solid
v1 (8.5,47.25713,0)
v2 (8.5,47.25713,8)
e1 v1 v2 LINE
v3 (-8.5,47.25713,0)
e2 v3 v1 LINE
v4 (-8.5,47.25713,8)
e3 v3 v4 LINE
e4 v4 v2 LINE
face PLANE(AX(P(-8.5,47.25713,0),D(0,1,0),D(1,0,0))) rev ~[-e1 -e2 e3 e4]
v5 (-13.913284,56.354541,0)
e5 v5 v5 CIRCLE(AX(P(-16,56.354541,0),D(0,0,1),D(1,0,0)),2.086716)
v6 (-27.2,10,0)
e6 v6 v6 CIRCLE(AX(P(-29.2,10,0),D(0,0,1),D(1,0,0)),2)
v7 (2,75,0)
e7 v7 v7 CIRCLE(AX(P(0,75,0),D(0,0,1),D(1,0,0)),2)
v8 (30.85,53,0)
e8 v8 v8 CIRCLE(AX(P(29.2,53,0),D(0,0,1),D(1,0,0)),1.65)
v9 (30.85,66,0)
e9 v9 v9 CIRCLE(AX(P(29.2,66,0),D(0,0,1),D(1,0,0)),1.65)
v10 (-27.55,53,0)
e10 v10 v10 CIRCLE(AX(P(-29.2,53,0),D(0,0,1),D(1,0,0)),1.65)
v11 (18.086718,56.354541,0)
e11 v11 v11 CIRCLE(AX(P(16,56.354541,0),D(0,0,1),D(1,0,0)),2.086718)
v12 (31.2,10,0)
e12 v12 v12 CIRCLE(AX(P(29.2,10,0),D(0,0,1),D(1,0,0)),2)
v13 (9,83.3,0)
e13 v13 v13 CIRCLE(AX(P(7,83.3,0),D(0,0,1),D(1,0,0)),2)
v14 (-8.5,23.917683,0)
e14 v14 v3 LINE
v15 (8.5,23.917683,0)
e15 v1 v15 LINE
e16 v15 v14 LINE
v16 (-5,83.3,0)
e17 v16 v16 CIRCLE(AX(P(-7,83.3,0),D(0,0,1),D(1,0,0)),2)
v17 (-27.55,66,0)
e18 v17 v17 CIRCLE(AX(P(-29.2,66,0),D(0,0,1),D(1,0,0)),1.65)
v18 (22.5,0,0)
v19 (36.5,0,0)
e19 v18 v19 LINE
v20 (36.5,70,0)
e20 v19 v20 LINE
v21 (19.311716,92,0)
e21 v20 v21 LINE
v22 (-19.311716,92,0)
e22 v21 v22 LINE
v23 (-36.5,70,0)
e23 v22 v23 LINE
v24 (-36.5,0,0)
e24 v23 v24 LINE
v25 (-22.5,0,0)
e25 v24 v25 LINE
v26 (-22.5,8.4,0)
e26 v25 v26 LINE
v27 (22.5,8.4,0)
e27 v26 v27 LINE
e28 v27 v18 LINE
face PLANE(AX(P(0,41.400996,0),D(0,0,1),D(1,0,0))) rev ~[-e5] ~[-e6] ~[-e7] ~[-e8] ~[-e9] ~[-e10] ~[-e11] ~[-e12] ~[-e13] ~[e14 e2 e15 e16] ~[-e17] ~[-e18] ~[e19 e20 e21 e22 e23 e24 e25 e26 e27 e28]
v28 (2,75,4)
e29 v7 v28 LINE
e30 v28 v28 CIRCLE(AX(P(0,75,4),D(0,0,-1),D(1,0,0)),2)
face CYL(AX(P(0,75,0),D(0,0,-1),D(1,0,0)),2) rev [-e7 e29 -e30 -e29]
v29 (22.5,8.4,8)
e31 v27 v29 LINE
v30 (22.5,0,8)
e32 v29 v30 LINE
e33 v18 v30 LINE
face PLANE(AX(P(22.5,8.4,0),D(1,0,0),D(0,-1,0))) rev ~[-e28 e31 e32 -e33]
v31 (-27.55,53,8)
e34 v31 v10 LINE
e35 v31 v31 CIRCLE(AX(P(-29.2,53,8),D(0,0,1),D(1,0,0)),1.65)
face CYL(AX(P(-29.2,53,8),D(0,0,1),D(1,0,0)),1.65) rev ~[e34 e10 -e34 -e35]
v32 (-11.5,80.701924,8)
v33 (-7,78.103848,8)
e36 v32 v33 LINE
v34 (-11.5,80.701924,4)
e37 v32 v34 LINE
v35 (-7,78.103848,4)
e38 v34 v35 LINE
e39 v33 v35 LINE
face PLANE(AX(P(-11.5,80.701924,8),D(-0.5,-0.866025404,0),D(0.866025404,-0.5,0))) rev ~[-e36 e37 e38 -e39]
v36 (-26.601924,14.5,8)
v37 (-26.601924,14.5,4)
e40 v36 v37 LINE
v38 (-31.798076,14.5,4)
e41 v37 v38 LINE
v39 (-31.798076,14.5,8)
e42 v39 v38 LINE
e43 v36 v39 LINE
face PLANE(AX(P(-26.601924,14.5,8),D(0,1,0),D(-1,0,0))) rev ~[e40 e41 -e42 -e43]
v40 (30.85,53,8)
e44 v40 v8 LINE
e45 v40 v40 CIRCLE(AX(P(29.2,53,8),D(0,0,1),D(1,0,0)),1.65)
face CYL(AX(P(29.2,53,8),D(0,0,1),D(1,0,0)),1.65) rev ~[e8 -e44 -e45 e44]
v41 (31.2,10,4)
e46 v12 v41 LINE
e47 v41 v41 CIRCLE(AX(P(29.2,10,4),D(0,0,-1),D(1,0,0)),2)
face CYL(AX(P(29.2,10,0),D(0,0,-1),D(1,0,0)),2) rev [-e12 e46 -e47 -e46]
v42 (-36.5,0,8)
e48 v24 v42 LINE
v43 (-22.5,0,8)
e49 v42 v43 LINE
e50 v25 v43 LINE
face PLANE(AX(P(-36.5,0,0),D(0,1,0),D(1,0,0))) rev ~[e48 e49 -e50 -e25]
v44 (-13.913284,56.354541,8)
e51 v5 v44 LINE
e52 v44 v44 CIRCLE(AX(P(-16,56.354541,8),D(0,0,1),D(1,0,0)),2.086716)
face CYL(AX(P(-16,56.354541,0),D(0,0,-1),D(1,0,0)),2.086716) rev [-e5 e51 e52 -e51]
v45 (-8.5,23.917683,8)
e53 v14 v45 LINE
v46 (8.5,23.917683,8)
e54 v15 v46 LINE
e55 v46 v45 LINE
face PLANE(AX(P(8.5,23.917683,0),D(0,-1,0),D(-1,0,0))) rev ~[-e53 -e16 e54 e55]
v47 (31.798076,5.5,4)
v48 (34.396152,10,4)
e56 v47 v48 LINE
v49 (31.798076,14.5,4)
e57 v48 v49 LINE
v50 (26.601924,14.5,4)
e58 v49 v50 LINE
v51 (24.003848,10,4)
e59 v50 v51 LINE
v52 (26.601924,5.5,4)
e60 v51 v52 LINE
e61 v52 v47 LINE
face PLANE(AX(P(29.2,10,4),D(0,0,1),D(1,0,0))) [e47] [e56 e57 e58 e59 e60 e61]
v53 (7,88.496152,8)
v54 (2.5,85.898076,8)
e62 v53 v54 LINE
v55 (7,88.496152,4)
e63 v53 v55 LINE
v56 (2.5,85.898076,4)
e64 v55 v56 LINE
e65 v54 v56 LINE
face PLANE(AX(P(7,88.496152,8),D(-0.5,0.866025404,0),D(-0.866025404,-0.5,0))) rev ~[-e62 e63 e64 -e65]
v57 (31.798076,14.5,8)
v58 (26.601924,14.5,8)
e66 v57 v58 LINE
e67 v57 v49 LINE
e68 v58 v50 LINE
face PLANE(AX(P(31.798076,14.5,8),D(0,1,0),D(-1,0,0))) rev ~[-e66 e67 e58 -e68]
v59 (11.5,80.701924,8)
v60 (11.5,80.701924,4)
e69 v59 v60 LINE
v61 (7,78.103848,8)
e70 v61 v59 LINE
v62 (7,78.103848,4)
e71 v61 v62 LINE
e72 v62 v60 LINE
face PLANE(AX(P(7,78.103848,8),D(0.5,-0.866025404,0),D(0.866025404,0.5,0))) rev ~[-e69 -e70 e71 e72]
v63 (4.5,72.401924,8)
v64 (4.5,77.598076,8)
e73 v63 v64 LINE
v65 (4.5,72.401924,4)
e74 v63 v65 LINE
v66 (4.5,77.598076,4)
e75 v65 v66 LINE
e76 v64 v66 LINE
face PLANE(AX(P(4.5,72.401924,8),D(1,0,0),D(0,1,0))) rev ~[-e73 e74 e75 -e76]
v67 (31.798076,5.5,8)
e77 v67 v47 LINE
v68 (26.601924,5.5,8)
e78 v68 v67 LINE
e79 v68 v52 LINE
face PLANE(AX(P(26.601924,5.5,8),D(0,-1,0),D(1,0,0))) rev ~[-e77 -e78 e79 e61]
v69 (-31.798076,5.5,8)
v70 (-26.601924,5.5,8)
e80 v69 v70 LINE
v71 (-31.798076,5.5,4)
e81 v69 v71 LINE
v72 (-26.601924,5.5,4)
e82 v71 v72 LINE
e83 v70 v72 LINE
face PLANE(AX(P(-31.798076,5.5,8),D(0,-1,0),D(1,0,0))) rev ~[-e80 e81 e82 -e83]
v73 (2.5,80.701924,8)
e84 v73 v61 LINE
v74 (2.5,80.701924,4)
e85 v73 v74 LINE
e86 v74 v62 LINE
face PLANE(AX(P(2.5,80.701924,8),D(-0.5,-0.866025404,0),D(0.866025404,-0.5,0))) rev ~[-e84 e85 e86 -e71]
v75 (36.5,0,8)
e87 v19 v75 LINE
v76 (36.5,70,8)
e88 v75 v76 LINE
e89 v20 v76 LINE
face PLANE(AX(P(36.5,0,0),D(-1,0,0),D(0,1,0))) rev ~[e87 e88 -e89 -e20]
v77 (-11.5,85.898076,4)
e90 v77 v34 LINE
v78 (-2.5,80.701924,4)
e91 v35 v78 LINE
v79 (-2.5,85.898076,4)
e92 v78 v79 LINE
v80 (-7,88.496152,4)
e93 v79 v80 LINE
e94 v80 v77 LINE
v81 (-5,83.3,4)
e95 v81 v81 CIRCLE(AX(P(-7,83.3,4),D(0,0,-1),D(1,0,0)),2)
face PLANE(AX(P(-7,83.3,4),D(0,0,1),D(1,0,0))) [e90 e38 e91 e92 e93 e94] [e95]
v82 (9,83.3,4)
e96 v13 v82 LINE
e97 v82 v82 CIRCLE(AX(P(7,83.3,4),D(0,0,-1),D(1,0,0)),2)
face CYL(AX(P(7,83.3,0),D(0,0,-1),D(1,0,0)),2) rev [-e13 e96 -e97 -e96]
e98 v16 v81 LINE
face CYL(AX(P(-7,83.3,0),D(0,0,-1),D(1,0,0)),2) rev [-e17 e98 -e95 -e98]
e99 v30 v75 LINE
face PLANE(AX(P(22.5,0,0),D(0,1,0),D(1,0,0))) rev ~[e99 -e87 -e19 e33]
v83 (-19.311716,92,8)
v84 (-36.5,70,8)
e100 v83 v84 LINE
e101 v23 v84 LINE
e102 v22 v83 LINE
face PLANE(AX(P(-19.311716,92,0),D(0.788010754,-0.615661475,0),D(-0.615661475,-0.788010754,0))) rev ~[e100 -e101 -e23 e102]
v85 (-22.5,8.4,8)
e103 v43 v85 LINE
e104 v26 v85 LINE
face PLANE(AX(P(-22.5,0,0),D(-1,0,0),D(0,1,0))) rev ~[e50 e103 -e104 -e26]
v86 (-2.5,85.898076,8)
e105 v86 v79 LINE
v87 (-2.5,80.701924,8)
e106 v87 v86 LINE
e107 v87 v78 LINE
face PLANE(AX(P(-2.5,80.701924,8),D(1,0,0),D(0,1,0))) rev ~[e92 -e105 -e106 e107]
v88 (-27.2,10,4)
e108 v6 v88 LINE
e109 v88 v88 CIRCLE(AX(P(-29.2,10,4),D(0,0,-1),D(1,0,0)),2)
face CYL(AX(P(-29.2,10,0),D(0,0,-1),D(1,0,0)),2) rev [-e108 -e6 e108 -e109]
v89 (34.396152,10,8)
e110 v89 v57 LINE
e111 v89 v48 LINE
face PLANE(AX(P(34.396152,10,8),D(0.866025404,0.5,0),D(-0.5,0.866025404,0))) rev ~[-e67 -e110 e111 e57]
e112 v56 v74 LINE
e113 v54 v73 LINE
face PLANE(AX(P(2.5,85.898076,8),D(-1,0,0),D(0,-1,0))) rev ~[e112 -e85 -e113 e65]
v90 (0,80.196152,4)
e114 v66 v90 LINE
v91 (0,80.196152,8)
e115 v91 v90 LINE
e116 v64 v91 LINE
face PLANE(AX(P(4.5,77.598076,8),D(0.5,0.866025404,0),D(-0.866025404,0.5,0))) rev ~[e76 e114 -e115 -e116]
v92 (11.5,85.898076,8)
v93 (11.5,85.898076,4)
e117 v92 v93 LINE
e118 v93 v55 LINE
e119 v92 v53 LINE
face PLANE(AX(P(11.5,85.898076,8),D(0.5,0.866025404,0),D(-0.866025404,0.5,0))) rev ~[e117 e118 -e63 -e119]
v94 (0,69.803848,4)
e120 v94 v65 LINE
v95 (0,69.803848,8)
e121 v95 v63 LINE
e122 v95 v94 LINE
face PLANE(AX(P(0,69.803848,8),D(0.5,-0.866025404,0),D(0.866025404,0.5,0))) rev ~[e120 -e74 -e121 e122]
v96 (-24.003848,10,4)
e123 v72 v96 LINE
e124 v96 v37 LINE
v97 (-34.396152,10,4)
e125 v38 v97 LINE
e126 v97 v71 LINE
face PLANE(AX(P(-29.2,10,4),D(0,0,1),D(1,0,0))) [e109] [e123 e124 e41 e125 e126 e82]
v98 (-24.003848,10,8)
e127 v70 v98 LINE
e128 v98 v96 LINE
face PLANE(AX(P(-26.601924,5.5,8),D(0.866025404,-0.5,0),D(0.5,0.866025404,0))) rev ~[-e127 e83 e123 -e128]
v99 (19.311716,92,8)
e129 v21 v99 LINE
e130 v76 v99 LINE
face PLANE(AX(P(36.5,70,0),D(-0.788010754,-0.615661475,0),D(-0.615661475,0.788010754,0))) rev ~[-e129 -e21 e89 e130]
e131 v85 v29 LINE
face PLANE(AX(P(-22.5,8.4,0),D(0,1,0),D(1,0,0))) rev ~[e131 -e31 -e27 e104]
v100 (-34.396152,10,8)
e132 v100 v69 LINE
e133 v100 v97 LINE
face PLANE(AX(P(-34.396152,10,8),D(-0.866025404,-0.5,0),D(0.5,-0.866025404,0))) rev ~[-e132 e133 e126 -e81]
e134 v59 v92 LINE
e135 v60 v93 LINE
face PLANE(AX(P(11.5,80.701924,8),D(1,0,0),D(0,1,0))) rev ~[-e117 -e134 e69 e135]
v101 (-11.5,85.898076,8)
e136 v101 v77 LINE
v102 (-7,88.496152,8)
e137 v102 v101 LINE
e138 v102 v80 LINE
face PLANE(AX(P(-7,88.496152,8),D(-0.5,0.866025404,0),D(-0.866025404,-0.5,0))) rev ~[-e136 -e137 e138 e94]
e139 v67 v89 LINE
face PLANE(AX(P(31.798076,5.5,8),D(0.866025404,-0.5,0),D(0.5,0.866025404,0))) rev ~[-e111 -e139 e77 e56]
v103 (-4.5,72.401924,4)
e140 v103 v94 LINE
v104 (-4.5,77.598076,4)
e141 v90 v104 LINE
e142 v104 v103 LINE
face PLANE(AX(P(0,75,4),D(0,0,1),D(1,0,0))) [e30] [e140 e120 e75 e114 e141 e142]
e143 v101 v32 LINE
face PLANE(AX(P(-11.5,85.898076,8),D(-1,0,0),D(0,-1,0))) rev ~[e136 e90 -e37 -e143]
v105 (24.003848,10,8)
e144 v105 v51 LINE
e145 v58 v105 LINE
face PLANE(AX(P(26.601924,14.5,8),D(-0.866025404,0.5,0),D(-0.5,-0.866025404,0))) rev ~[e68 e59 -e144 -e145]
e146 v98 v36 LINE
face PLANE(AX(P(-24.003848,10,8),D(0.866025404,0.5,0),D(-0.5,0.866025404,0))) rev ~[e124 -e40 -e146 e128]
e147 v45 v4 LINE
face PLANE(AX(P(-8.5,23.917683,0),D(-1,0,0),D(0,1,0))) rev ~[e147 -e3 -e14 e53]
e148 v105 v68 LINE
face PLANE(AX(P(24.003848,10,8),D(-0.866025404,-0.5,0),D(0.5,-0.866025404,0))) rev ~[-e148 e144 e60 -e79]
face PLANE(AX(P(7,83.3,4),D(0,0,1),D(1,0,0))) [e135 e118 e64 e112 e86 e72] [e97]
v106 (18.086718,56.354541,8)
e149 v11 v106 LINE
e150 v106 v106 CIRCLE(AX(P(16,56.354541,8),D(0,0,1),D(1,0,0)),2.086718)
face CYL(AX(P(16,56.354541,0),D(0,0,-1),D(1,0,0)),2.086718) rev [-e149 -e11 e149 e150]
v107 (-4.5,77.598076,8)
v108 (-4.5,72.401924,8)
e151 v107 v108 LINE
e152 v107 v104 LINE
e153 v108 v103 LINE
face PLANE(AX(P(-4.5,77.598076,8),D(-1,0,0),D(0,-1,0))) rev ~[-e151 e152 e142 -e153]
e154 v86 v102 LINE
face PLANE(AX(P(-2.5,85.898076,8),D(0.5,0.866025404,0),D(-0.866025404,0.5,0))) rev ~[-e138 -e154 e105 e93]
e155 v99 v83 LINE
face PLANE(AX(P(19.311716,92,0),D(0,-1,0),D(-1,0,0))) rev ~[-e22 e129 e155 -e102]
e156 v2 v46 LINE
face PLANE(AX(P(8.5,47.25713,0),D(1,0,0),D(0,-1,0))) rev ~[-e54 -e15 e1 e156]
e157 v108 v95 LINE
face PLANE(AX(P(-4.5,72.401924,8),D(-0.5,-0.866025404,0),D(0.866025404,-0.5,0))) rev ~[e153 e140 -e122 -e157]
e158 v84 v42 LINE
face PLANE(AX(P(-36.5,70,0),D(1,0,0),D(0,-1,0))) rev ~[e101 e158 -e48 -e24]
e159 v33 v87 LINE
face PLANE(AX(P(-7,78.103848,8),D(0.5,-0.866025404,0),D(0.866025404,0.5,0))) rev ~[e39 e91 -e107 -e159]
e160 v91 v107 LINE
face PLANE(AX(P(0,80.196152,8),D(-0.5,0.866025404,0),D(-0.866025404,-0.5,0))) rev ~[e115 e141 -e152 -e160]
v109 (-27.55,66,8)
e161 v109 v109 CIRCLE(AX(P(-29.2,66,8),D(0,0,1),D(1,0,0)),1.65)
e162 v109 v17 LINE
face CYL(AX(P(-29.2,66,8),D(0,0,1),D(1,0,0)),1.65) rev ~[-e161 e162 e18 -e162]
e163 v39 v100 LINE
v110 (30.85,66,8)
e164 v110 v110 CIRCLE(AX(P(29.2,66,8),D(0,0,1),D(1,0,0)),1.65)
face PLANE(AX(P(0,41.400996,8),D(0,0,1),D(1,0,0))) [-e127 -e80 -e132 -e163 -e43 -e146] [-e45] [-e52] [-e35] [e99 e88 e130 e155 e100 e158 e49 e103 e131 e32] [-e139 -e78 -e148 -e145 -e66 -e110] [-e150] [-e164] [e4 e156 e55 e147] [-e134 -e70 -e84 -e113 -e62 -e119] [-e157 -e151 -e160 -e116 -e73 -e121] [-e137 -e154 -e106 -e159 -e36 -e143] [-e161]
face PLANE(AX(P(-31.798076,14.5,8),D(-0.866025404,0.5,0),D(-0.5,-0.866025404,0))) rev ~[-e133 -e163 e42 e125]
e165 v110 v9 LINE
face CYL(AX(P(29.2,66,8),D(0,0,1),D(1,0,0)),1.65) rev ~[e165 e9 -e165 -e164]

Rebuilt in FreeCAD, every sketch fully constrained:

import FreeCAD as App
import Part
import Sketcher
Q = App.Units.Quantity


def add_polygon(sketch, points):
    """Adds a closed chain of lines whose ends are joined by coincident constraints."""
    first, n = sketch.GeometryCount, len(points)
    for a, b in zip(points, points[1:] + points[:1]):
        sketch.addGeometry(Part.LineSegment(App.Vector(*a, 0), App.Vector(*b, 0)), False)
    for i in range(n):
        sketch.addConstraint(Sketcher.Constraint("Coincident", first + i, 2, first + (i + 1) % n, 1))

doc = App.newDocument("Part")
params = doc.addObject("Spreadsheet::Sheet", "Params")
for row, (alias, value) in enumerate([
    ("sketch1_diameter", "4 mm"),
    ("sketch1_width", "14 mm"),
    ("sketch1_width2", "45 mm"),
    ("sketch1_width3", "17 mm"),
    ("sketch1_height", "70 mm"),
    ("pad1_length", "8 mm"),
    ("sketch2_diameter", "3.3 mm"),
    ("pocket2_length", "4 mm"),
], start=1):
    params.set(f"A{row}", alias)
    params.set(f"B{row}", "=" + value)
    params.setAlias(f"B{row}", alias)

body = doc.addObject("PartDesign::Body", "Body")

sketch1 = body.newObject("Sketcher::SketchObject", "Sketch")
sketch1.AttachmentSupport = (doc.getObject("XY_Plane"), [""])
sketch1.MapMode = "FlatFace"
add_polygon(sketch1, [(19.3, 92), (-19.3, 92), (-36.5, 70), (-36.5, 0), (-22.5, 0), (-22.5, 8.4), (22.5, 8.4), (22.5, 0), (36.5, 0), (36.5, 70)])
sketch1.addGeometry(Part.Circle(App.Vector(-29.2, 10, 0), App.Vector(0, 0, 1), 2), False)
sketch1.addGeometry(Part.Circle(App.Vector(29.2, 10, 0), App.Vector(0, 0, 1), 2), False)
add_polygon(sketch1, [(-8.5, 47.3), (8.5, 47.3), (8.5, 23.9), (-8.5, 23.9)])
sketch1.addGeometry(Part.Circle(App.Vector(-16, 56.4, 0), App.Vector(0, 0, 1), 2.1), False)
sketch1.addGeometry(Part.Circle(App.Vector(-7, 83.3, 0), App.Vector(0, 0, 1), 2), False)
sketch1.addGeometry(Part.Circle(App.Vector(16, 56.4, 0), App.Vector(0, 0, 1), 2.1), False)
sketch1.addGeometry(Part.Circle(App.Vector(0, 75, 0), App.Vector(0, 0, 1), 2), False)
sketch1.addGeometry(Part.Circle(App.Vector(7, 83.3, 0), App.Vector(0, 0, 1), 2), False)
sketch1.addConstraint([
    Sketcher.Constraint("Horizontal", 0),
    Sketcher.Constraint("Vertical", 2),
    Sketcher.Constraint("Horizontal", 3),
    Sketcher.Constraint("Vertical", 4),
    Sketcher.Constraint("Horizontal", 5),
    Sketcher.Constraint("Vertical", 6),
    Sketcher.Constraint("Horizontal", 7),
    Sketcher.Constraint("Vertical", 8),
    Sketcher.Constraint("Horizontal", 12),
    Sketcher.Constraint("Vertical", 13),
    Sketcher.Constraint("Horizontal", 14),
    Sketcher.Constraint("Vertical", 15),
    Sketcher.Constraint("Equal", 10, 11),
    Sketcher.Constraint("Equal", 11, 17),
    Sketcher.Constraint("Equal", 16, 18),
    Sketcher.Constraint("Equal", 17, 19),
    Sketcher.Constraint("Equal", 19, 20),
    Sketcher.Constraint("Symmetric", 3, 2, 6, 2, -1, 1),
    Sketcher.Constraint("Symmetric", 10, 3, 11, 3, -2),
    Sketcher.Constraint("Symmetric", 16, 3, 18, 3, -2),
    Sketcher.Constraint("Symmetric", 17, 3, 20, 3, -2),
    Sketcher.Constraint("Symmetric", 2, 2, 7, 2, -2),
    Sketcher.Constraint("PointOnObject", 19, 3, -2),
    Sketcher.Constraint("Horizontal", 1, 2, 8, 2),
    Sketcher.Constraint("Equal", 1, 9),
    Sketcher.Constraint("Diameter", 10, Q("4 mm")),
    Sketcher.Constraint("DistanceX", 3, 1, 3, 2, Q("14 mm")),
    Sketcher.Constraint("DistanceX", 5, 1, 5, 2, Q("45 mm")),
    Sketcher.Constraint("DistanceX", 12, 1, 12, 2, Q("17 mm")),
    Sketcher.Constraint("DistanceY", 2, 2, 2, 1, Q("70 mm")),
    Sketcher.Constraint("Angle", 1, Q("-128 deg")),
    Sketcher.Constraint("DistanceY", 4, 1, 4, 2, Q("8.4 mm")),
    Sketcher.Constraint("DistanceY", -1, 1, 10, 3, Q("10 mm")),
    Sketcher.Constraint("DistanceX", 16, 3, -1, 1, Q("16 mm")),
    Sketcher.Constraint("DistanceX", 17, 3, -1, 1, Q("7 mm")),
    Sketcher.Constraint("DistanceY", -1, 1, 19, 3, Q("75 mm")),
    Sketcher.Constraint("DistanceY", -1, 1, 0, 2, Q("92 mm")),
    Sketcher.Constraint("DistanceX", 12, 2, 8, 2, Q("28 mm")),
    Sketcher.Constraint("DistanceX", 10, 3, -1, 1, Q("29.2 mm")),
    Sketcher.Constraint("DistanceY", -1, 1, 17, 3, Q("83.3 mm")),
    Sketcher.Constraint("Diameter", 16, Q("4.173432 mm")),
    Sketcher.Constraint("DistanceY", 13, 2, 13, 1, Q("23.339447 mm")),
    Sketcher.Constraint("DistanceY", -1, 1, 16, 3, Q("56.354541 mm")),
    Sketcher.Constraint("DistanceY", -1, 1, 12, 2, Q("47.25713 mm")),
])
sketch1.setExpression("Constraints[39]", "Params.sketch1_diameter")
sketch1.setExpression("Constraints[40]", "Params.sketch1_width")
sketch1.setExpression("Constraints[41]", "Params.sketch1_width2")
sketch1.setExpression("Constraints[42]", "Params.sketch1_width3")
sketch1.setExpression("Constraints[43]", "Params.sketch1_height")
pad1 = body.newObject("PartDesign::Pad", "Pad")
pad1.Profile = sketch1
pad1.setExpression("Length", "Params.pad1_length")

sketch2 = body.newObject("Sketcher::SketchObject", "Sketch001")
sketch2.AttachmentSupport = (doc.getObject("XY_Plane"), [""])
sketch2.MapMode = "FlatFace"
sketch2.AttachmentOffset = App.Placement(App.Vector(0, 0, 8), App.Rotation())
sketch2.addGeometry([
    Part.Circle(App.Vector(-29.2, 66, 0), App.Vector(0, 0, 1), 1.6),
    Part.Circle(App.Vector(-29.2, 53, 0), App.Vector(0, 0, 1), 1.6),
    Part.Circle(App.Vector(29.2, 53, 0), App.Vector(0, 0, 1), 1.6),
    Part.Circle(App.Vector(29.2, 66, 0), App.Vector(0, 0, 1), 1.6),
], False)
sketch2.addConstraint([
    Sketcher.Constraint("Equal", 0, 1),
    Sketcher.Constraint("Equal", 1, 2),
    Sketcher.Constraint("Equal", 2, 3),
    Sketcher.Constraint("Symmetric", 1, 3, 2, 3, -2),
    Sketcher.Constraint("Symmetric", 0, 3, 3, 3, -2),
    Sketcher.Constraint("Vertical", 0, 3, 1, 3),
    Sketcher.Constraint("Diameter", 0, Q("3.3 mm")),
    Sketcher.Constraint("DistanceY", -1, 1, 0, 3, Q("66 mm")),
    Sketcher.Constraint("DistanceY", -1, 1, 1, 3, Q("53 mm")),
    Sketcher.Constraint("DistanceX", 0, 3, -1, 1, Q("29.2 mm")),
])
sketch2.setExpression("Constraints[6]", "Params.sketch2_diameter")
pocket1 = body.newObject("PartDesign::Pocket", "Pocket")
pocket1.Profile = sketch2
pocket1.Type = "ThroughAll"

sketch3 = body.newObject("Sketcher::SketchObject", "Sketch002")
sketch3.AttachmentSupport = (doc.getObject("XY_Plane"), [""])
sketch3.MapMode = "FlatFace"
sketch3.AttachmentOffset = App.Placement(App.Vector(0, 0, 8), App.Rotation())
add_polygon(sketch3, [(4, 72), (4, 78), (0, 80), (-4, 78), (-4, 72), (0, 70)])
add_polygon(sketch3, [(-27, 14), (-32, 14), (-34, 10), (-32, 6), (-27, 6), (-24, 10)])
add_polygon(sketch3, [(-12, 81), (-7, 78), (-2, 81), (-2, 86), (-7, 88), (-12, 86)])
add_polygon(sketch3, [(12, 81), (12, 86), (7, 88), (2, 86), (2, 81), (7, 78)])
add_polygon(sketch3, [(32, 6), (34, 10), (32, 14), (27, 14), (24, 10), (27, 6)])
sketch3.addConstraint([
    Sketcher.Constraint("Vertical", 0),
    Sketcher.Constraint("Vertical", 3),
    Sketcher.Constraint("Horizontal", 6),
    Sketcher.Constraint("Horizontal", 9),
    Sketcher.Constraint("Vertical", 14),
    Sketcher.Constraint("Vertical", 17),
    Sketcher.Constraint("Vertical", 18),
    Sketcher.Constraint("Vertical", 21),
    Sketcher.Constraint("Horizontal", 26),
    Sketcher.Constraint("Horizontal", 29),
    Sketcher.Constraint("Symmetric", 0, 2, 2, 2, -2),
    Sketcher.Constraint("Symmetric", 16, 2, 18, 2, -2),
    Sketcher.Constraint("Symmetric", 15, 2, 19, 2, -2),
    Sketcher.Constraint("Symmetric", 14, 2, 20, 2, -2),
    Sketcher.Constraint("Symmetric", 12, 2, 22, 2, -2),
    Sketcher.Constraint("Symmetric", 7, 2, 24, 2, -2),
    Sketcher.Constraint("Symmetric", 6, 2, 25, 2, -2),
    Sketcher.Constraint("Symmetric", 10, 2, 27, 2, -2),
    Sketcher.Constraint("Symmetric", 9, 2, 28, 2, -2),
    Sketcher.Constraint("PointOnObject", 1, 2, -2),
    Sketcher.Constraint("PointOnObject", 4, 2, -2),
    Sketcher.Constraint("Parallel", 1, 4),
    Sketcher.Constraint("Parallel", 2, 5),
    Sketcher.Constraint("Perpendicular", 4, 7),
    Sketcher.Constraint("Perpendicular", 5, 8),
    Sketcher.Constraint("Parallel", 7, 10),
    Sketcher.Constraint("Parallel", 8, 11),
    Sketcher.Constraint("Perpendicular", 10, 12),
    Sketcher.Constraint("Perpendicular", 11, 13),
    Sketcher.Constraint("Parallel", 12, 15),
    Sketcher.Constraint("Parallel", 13, 16),
    Sketcher.Constraint("Parallel", 19, 22),
    Sketcher.Constraint("Parallel", 20, 23),
    Sketcher.Constraint("Perpendicular", 22, 24),
    Sketcher.Constraint("Parallel", 24, 27),
    Sketcher.Constraint("Horizontal", 7, 2, 10, 2),
    Sketcher.Constraint("Horizontal", 14, 2, 16, 2),
    Sketcher.Constraint("Horizontal", 13, 2, 17, 2),
    Sketcher.Constraint("Vertical", 6, 2, 8, 2),
    Sketcher.Constraint("Equal", 29, 0),
    Sketcher.Constraint("Equal", 3, 14),
    Sketcher.Constraint("Equal", 5, 7),
    Sketcher.Constraint("Equal", 11, 12),
    Sketcher.Constraint("Angle", 1, Q("150 deg")),
    Sketcher.Constraint("DistanceY", -1, 1, 7, 2, Q("10 mm")),
    Sketcher.Constraint("DistanceX", 12, 2, -1, 1, Q("7 mm")),
    Sketcher.Constraint("DistanceX", 2, 2, 0, 2, Q("9 mm")),
    Sketcher.Constraint("DistanceY", 4, 2, 12, 2, Q("8.3 mm")),
    Sketcher.Constraint("DistanceX", 10, 2, 24, 2, Q("58.4 mm")),
    Sketcher.Constraint("DistanceX", 6, 2, 6, 1, Q("5.196152 mm")),
    Sketcher.Constraint("DistanceY", -1, 1, 0, 2, Q("77.598076 mm")),
])
pocket2 = body.newObject("PartDesign::Pocket", "Pocket001")
pocket2.Profile = sketch3
pocket2.setExpression("Length", "Params.pocket2_length")

doc.recompute()
